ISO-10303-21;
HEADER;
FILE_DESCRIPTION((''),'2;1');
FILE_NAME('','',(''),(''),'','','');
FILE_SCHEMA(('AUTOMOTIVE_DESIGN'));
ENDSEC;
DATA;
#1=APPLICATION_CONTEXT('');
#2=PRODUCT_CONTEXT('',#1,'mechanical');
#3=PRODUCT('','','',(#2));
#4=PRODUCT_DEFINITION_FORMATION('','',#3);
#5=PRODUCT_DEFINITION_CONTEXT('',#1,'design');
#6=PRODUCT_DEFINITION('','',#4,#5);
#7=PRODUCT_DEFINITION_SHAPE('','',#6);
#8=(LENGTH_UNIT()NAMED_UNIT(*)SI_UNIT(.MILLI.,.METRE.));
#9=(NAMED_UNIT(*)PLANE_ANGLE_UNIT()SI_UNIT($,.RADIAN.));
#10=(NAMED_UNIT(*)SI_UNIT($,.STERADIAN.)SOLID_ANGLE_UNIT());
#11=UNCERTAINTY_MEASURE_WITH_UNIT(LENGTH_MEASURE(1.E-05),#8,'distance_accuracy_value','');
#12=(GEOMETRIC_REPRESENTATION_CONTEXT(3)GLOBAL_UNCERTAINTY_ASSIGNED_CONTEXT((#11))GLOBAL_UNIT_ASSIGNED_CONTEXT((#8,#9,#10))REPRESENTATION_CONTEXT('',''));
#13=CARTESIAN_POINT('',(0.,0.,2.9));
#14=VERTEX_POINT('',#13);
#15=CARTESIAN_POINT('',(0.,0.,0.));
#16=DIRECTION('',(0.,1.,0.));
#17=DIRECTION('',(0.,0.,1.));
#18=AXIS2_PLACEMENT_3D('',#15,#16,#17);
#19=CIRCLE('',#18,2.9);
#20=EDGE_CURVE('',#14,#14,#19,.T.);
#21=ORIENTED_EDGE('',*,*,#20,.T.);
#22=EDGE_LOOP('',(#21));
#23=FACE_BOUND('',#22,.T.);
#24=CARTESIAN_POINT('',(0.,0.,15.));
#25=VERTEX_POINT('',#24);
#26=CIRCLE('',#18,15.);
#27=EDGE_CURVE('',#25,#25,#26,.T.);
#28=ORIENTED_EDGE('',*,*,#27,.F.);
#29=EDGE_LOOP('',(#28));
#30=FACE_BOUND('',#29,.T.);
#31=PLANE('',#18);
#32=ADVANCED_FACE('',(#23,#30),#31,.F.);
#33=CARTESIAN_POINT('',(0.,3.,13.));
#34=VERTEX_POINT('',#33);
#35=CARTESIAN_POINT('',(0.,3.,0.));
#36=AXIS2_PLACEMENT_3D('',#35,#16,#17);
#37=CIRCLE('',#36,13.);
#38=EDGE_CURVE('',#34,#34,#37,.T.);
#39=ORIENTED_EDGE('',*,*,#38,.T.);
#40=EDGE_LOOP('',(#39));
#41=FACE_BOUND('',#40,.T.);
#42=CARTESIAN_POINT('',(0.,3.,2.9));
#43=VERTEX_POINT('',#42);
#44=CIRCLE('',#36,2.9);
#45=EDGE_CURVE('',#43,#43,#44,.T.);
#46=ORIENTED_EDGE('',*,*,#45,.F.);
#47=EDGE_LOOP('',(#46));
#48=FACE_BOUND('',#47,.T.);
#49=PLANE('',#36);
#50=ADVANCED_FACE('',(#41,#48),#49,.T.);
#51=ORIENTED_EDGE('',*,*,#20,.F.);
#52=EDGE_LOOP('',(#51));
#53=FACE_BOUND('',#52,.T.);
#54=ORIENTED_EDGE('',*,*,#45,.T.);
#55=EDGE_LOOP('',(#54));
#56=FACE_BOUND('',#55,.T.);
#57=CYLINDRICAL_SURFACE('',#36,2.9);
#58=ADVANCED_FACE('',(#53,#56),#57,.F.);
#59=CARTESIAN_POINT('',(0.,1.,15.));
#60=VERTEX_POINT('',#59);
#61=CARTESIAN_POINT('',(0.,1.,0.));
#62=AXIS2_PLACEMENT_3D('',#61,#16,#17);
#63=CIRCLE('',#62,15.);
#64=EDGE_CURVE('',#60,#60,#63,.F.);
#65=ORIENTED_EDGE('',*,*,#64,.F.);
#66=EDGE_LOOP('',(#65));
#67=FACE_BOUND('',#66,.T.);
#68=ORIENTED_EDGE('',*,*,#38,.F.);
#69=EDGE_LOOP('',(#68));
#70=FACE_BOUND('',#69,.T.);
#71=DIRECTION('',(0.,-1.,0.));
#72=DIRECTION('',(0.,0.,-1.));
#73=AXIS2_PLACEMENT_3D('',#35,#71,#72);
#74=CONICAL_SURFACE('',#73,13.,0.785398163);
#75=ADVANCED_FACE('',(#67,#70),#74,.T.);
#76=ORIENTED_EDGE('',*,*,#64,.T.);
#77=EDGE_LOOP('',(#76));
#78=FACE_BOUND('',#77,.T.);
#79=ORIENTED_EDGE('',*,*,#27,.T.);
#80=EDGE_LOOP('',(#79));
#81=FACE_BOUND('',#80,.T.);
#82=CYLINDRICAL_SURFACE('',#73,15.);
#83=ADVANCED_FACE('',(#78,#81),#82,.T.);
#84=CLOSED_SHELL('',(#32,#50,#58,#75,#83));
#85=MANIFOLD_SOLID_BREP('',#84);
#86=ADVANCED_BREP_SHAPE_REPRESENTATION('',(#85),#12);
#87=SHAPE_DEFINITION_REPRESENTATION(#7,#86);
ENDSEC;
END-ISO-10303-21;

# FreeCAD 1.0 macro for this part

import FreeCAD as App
import Part
import Sketcher


def edges_at(feature, points):
    """Names of the edges that pass closest to the given points."""
    edges = feature.Shape.Edges
    near = lambda p: min(range(len(edges)), key=lambda i: edges[i].distToShape(Part.Vertex(*p))[0])
    return sorted({f"Edge{near(p) + 1}" for p in points})

doc = App.newDocument("Part")
body = doc.addObject("PartDesign::Body", "Body")

sketch1 = body.newObject("Sketcher::SketchObject", "Sketch")
sketch1.AttachmentSupport = (doc.getObject("XZ_Plane"), [""])
sketch1.MapMode = "FlatFace"
sketch1.addGeometry(Part.Circle(App.Vector(0, 0, 0), App.Vector(0, 0, 1), 15), False)
sketch1.addConstraint([
    Sketcher.Constraint("Coincident", 0, 3, -1, 1),
    Sketcher.Constraint("Diameter", 0, 30.0),
])
pad1 = body.newObject("PartDesign::Pad", "Pad")
pad1.Profile = sketch1
pad1.Length = 3
pad1.Reversed = True
doc.recompute()

chamfer = body.newObject("PartDesign::Chamfer", "Chamfer")
chamfer.Base = (pad1, edges_at(pad1, [(-15, 3, 0)]))
chamfer.Size = 2

sketch2 = body.newObject("Sketcher::SketchObject", "Sketch001")
sketch2.AttachmentSupport = (doc.getObject("XZ_Plane"), [""])
sketch2.MapMode = "FlatFace"
sketch2.AttachmentOffset = App.Placement(App.Vector(0, 0, -3), App.Rotation())
sketch2.addGeometry(Part.Circle(App.Vector(0, 0, 0), App.Vector(0, 0, 1), 2.9), False)
sketch2.addConstraint([
    Sketcher.Constraint("Coincident", 0, 3, -1, 1),
    Sketcher.Constraint("Diameter", 0, 5.8),
])
doc.recompute()
hole = body.newObject("PartDesign::Hole", "Hole")
hole.Profile = sketch2
hole.ThreadType = "None"
hole.Diameter = 5.8
hole.DepthType = "Dimension"
hole.Depth = 6
hole.DrillPoint = "Angled"
hole.DrillPointAngle = 118
hole.Reversed = True

doc.recompute()
